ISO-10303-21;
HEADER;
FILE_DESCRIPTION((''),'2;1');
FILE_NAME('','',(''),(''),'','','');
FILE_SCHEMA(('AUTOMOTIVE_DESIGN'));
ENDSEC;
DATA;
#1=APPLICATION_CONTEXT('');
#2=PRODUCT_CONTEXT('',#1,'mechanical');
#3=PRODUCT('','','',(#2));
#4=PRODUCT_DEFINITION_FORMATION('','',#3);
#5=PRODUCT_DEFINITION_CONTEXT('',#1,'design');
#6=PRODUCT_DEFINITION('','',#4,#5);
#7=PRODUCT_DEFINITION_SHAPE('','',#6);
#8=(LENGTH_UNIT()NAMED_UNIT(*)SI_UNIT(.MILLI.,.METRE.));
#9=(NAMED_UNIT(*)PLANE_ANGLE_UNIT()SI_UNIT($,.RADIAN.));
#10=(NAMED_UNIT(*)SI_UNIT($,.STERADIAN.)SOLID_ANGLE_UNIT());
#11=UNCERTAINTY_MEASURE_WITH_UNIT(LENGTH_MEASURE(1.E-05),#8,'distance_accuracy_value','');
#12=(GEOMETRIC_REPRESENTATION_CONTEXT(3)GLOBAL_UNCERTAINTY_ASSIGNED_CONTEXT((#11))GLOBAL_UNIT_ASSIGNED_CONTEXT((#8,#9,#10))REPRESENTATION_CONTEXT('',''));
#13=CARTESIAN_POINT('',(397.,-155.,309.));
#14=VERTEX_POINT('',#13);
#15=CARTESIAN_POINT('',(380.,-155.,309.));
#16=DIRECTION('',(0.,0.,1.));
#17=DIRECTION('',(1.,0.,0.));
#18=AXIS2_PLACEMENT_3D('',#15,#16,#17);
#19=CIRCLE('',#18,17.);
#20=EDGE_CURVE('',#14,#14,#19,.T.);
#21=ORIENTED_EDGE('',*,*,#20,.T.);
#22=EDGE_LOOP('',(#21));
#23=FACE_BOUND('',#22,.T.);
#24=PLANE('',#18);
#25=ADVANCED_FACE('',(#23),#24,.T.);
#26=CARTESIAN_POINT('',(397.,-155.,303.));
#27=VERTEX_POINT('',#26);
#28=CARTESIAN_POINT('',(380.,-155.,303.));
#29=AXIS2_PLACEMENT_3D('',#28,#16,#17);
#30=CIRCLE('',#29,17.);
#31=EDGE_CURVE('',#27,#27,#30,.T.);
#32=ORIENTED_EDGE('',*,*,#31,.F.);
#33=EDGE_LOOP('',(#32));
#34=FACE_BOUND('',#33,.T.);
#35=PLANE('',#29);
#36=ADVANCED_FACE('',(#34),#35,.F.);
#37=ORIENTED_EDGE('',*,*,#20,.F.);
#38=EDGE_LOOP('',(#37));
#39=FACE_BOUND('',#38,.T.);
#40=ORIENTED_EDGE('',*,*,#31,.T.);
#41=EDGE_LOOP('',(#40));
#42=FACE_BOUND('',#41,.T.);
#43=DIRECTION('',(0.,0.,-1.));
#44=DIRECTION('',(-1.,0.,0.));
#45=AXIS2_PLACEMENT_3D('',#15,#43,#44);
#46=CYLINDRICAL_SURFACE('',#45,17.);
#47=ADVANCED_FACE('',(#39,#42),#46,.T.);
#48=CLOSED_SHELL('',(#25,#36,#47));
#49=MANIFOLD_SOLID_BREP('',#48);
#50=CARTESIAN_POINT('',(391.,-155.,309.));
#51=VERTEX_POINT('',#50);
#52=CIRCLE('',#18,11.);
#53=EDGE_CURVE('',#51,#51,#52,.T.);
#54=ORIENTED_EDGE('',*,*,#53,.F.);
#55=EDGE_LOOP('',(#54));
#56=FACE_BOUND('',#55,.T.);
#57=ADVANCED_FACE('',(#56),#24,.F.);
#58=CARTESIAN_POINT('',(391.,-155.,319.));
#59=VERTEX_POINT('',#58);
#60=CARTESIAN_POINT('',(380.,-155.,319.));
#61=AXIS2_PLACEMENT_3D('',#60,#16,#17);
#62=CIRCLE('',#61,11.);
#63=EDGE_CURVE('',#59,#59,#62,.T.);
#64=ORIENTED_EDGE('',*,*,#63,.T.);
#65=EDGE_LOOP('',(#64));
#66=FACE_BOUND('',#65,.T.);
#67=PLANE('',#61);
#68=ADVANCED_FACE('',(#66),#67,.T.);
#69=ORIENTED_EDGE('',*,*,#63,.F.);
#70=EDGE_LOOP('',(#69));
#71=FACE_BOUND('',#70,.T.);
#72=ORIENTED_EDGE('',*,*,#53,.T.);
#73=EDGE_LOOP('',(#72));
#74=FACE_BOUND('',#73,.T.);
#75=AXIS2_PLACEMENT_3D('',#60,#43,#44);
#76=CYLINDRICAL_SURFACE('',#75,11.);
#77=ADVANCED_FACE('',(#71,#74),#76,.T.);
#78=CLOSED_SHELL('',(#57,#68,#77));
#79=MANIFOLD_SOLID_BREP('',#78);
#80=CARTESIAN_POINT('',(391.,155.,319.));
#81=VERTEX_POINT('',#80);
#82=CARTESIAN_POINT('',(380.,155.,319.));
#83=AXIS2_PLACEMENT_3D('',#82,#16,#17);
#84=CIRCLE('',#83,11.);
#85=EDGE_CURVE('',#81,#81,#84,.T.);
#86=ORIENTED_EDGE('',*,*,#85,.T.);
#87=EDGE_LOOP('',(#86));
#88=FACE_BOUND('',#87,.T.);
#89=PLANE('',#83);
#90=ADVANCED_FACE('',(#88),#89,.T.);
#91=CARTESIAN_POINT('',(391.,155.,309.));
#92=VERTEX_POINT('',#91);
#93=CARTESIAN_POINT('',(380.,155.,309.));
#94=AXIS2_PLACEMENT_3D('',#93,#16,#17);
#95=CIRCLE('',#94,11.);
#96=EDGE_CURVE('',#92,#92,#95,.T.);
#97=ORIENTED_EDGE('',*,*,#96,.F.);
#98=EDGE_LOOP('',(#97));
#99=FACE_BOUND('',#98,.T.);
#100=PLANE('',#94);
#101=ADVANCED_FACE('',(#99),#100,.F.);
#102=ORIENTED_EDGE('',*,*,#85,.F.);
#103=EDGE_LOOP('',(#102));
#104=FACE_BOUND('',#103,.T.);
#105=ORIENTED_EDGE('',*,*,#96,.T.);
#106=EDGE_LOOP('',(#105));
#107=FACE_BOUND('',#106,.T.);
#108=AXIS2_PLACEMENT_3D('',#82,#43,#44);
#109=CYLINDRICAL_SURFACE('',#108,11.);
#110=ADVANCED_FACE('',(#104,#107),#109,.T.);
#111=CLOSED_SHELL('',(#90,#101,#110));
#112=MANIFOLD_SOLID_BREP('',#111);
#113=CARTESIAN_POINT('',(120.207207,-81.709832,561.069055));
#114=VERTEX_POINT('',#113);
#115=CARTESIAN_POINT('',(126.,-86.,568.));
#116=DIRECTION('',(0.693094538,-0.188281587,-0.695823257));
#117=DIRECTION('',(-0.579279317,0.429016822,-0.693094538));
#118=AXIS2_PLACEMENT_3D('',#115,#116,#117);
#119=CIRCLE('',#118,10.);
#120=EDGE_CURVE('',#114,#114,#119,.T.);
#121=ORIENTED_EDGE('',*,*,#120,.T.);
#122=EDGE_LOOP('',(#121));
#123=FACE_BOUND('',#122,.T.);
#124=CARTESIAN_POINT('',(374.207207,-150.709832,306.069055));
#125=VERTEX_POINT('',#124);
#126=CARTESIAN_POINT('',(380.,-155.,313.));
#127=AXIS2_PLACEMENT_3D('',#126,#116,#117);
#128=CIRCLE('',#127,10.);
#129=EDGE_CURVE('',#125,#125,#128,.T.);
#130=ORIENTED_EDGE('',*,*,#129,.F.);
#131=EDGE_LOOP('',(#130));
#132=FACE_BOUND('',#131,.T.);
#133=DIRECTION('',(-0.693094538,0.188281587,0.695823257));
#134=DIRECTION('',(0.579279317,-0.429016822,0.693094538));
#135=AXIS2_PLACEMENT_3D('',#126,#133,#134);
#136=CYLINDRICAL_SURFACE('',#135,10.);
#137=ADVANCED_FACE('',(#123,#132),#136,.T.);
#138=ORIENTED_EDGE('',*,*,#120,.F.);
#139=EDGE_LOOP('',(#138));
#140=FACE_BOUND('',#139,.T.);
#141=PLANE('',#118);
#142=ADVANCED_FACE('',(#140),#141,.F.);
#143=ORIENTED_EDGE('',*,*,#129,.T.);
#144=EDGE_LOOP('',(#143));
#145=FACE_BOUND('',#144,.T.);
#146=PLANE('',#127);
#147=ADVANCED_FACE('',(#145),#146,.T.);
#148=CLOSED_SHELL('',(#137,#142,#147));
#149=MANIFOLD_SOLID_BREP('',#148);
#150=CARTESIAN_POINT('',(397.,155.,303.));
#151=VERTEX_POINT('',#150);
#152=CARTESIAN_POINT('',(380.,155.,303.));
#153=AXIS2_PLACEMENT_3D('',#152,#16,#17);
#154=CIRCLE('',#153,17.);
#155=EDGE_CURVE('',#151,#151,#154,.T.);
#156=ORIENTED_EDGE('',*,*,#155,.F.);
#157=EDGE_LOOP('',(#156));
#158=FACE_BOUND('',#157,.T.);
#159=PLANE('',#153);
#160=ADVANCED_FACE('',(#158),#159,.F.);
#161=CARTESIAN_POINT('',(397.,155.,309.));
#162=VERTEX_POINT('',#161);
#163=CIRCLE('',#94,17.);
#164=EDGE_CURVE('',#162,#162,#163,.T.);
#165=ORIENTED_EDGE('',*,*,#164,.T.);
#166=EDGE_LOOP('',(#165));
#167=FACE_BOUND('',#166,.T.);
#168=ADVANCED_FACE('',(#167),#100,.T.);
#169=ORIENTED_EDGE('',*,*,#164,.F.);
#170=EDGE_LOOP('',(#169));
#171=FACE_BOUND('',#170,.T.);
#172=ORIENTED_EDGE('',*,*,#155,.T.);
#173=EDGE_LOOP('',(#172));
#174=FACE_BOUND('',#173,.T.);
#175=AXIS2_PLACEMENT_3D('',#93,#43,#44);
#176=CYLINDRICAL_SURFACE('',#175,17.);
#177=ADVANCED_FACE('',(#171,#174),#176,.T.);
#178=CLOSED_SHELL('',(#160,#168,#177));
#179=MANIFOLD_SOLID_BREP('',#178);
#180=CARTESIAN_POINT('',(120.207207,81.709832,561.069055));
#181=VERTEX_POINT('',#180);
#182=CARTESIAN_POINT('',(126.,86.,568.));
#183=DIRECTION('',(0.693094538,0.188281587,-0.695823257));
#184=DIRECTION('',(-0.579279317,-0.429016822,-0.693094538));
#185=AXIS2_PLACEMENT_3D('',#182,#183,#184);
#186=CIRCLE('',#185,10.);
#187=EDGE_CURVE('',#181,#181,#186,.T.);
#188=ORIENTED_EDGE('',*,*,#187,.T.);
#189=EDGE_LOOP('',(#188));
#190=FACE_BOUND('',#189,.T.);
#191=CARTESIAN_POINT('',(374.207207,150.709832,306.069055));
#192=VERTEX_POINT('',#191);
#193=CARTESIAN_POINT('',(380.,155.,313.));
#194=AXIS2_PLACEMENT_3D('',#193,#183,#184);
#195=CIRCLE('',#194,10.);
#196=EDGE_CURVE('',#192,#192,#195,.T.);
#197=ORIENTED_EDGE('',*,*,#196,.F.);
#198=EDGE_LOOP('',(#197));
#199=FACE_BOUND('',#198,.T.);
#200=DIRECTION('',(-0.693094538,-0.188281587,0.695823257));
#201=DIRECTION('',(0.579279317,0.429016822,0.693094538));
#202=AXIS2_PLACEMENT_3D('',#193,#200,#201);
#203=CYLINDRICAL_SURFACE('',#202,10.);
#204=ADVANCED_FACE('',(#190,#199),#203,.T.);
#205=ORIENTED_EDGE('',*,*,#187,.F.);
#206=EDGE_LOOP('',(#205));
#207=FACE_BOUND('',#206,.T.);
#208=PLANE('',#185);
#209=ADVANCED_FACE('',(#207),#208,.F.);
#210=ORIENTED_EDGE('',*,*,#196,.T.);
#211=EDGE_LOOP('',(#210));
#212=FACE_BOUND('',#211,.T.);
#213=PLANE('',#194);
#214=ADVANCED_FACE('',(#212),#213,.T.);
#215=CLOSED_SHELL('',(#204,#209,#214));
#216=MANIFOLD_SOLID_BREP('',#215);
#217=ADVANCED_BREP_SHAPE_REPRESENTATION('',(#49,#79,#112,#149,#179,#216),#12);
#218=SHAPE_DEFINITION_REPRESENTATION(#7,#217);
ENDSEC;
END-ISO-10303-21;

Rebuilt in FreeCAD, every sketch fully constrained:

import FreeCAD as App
import Part
import Sketcher
Q = App.Units.Quantity

doc = App.newDocument("Part")
body = doc.addObject("PartDesign::Body", "Body")

# Sketch on XY plane
sketch1 = body.newObject("Sketcher::SketchObject", "Sketch")
sketch1.AttachmentSupport = (doc.getObject("XY_Plane"), [""])
sketch1.MapMode = "FlatFace"
sketch1.addGeometry(Part.Circle(App.Vector(0, 0, 0), App.Vector(0, 0, 1), 10), False)
sketch1.addConstraint([
    Sketcher.Constraint("Coincident", 0, 3, -1, 1),
    Sketcher.Constraint("Diameter", 0, Q("20 mm")),
])
pad1 = body.newObject("PartDesign::Pad", "Pad")
pad1.Profile = sketch1
pad1.Length = 366.472373
body2 = doc.addObject("PartDesign::Body", "Body001")
doc.recompute()

body.Placement = App.Placement(App.Vector(0, 0, 0), App.Rotation(App.Vector(-1, 0, 0), 164.859016))
boolean = body2.newObject("PartDesign::Boolean", "Boolean")
boolean.Type = "Fuse"
boolean.addObjects([body])
body3 = doc.addObject("PartDesign::Body", "Body002")
doc.recompute()

body2.Placement = App.Placement(App.Vector(0, 0, 0), App.Rotation(App.Vector(0, 1, 0), 43.87557))
boolean2 = body3.newObject("PartDesign::Boolean", "Boolean001")
boolean2.Type = "Fuse"
boolean2.addObjects([body2])
body4 = doc.addObject("PartDesign::Body", "Body003")
doc.recompute()

body3.Placement = App.Placement(App.Vector(0, 0, 0), App.Rotation(App.Vector(0, 0, -1), 143.476188))
boolean3 = body4.newObject("PartDesign::Boolean", "Boolean002")
boolean3.Type = "Fuse"
boolean3.addObjects([body3])
body5 = doc.addObject("PartDesign::Body", "Body004")
doc.recompute()

body4.Placement = App.Placement(App.Vector(126, 86, 568), App.Rotation(App.Vector(0, 0, 1), 0))
boolean4 = body5.newObject("PartDesign::Boolean", "Boolean003")
boolean4.Type = "Fuse"
boolean4.addObjects([body4])
body6 = doc.addObject("PartDesign::Body", "Body005")

# Sketch on XY plane
sketch2 = body6.newObject("Sketcher::SketchObject", "Sketch001")
sketch2.AttachmentSupport = (doc.getObject("XY_Plane005"), [""])
sketch2.MapMode = "FlatFace"
sketch2.AttachmentOffset = App.Placement(App.Vector(0, 0, 303), App.Rotation())
sketch2.addGeometry(Part.Circle(App.Vector(380, 155, 0), App.Vector(0, 0, 1), 17), False)
sketch2.addConstraint([
    Sketcher.Constraint("Diameter", 0, Q("34 mm")),
    Sketcher.Constraint("DistanceX", -1, 1, 0, 3, Q("380 mm")),
    Sketcher.Constraint("DistanceY", -1, 1, 0, 3, Q("155 mm")),
])
pad2 = body6.newObject("PartDesign::Pad", "Pad001")
pad2.Profile = sketch2
pad2.Length = 6
body7 = doc.addObject("PartDesign::Body", "Body006")

# Sketch on XY plane
sketch3 = body7.newObject("Sketcher::SketchObject", "Sketch002")
sketch3.AttachmentSupport = (doc.getObject("XY_Plane006"), [""])
sketch3.MapMode = "FlatFace"
sketch3.AttachmentOffset = App.Placement(App.Vector(0, 0, 309), App.Rotation())
sketch3.addGeometry(Part.Circle(App.Vector(380, 155, 0), App.Vector(0, 0, 1), 11), False)
sketch3.addConstraint([
    Sketcher.Constraint("Diameter", 0, Q("22 mm")),
    Sketcher.Constraint("DistanceX", -1, 1, 0, 3, Q("380 mm")),
    Sketcher.Constraint("DistanceY", -1, 1, 0, 3, Q("155 mm")),
])
pad3 = body7.newObject("PartDesign::Pad", "Pad002")
pad3.Profile = sketch3
pad3.Length = 10
body8 = doc.addObject("PartDesign::Body", "Body007")

# Sketch on XY plane
sketch4 = body8.newObject("Sketcher::SketchObject", "Sketch003")
sketch4.AttachmentSupport = (doc.getObject("XY_Plane007"), [""])
sketch4.MapMode = "FlatFace"
sketch4.addGeometry(Part.Circle(App.Vector(0, 0, 0), App.Vector(0, 0, 1), 10), False)
sketch4.addConstraint([
    Sketcher.Constraint("Coincident", 0, 3, -1, 1),
    Sketcher.Constraint("Diameter", 0, Q("20 mm")),
])
pad4 = body8.newObject("PartDesign::Pad", "Pad003")
pad4.Profile = sketch4
pad4.Length = 366.472373
body9 = doc.addObject("PartDesign::Body", "Body008")
doc.recompute()

body8.Placement = App.Placement(App.Vector(0, 0, 0), App.Rotation(App.Vector(1, 0, 0), 164.859016))
boolean5 = body9.newObject("PartDesign::Boolean", "Boolean004")
boolean5.Type = "Fuse"
boolean5.addObjects([body8])
body10 = doc.addObject("PartDesign::Body", "Body009")
doc.recompute()

body9.Placement = App.Placement(App.Vector(0, 0, 0), App.Rotation(App.Vector(0, 1, 0), 43.87557))
boolean6 = body10.newObject("PartDesign::Boolean", "Boolean005")
boolean6.Type = "Fuse"
boolean6.addObjects([body9])
body11 = doc.addObject("PartDesign::Body", "Body010")
doc.recompute()

body10.Placement = App.Placement(App.Vector(0, 0, 0), App.Rotation(App.Vector(0, 0, 1), 143.476188))
boolean7 = body11.newObject("PartDesign::Boolean", "Boolean006")
boolean7.Type = "Fuse"
boolean7.addObjects([body10])
body12 = doc.addObject("PartDesign::Body", "Body011")
doc.recompute()

body11.Placement = App.Placement(App.Vector(126, -86, 568), App.Rotation(App.Vector(0, 0, 1), 0))
boolean8 = body12.newObject("PartDesign::Boolean", "Boolean007")
boolean8.Type = "Fuse"
boolean8.addObjects([body11])
body13 = doc.addObject("PartDesign::Body", "Body012")

# Sketch on XY plane
sketch5 = body13.newObject("Sketcher::SketchObject", "Sketch004")
sketch5.AttachmentSupport = (doc.getObject("XY_Plane012"), [""])
sketch5.MapMode = "FlatFace"
sketch5.AttachmentOffset = App.Placement(App.Vector(0, 0, 303), App.Rotation())
sketch5.addGeometry(Part.Circle(App.Vector(380, -155, 0), App.Vector(0, 0, 1), 17), False)
sketch5.addConstraint([
    Sketcher.Constraint("Diameter", 0, Q("34 mm")),
    Sketcher.Constraint("DistanceX", -1, 1, 0, 3, Q("380 mm")),
    Sketcher.Constraint("DistanceY", 0, 3, -1, 1, Q("155 mm")),
])
pad5 = body13.newObject("PartDesign::Pad", "Pad004")
pad5.Profile = sketch5
pad5.Length = 6
body14 = doc.addObject("PartDesign::Body", "Body013")

# Sketch on XY plane
sketch6 = body14.newObject("Sketcher::SketchObject", "Sketch005")
sketch6.AttachmentSupport = (doc.getObject("XY_Plane013"), [""])
sketch6.MapMode = "FlatFace"
sketch6.AttachmentOffset = App.Placement(App.Vector(0, 0, 309), App.Rotation())
sketch6.addGeometry(Part.Circle(App.Vector(380, -155, 0), App.Vector(0, 0, 1), 11), False)
sketch6.addConstraint([
    Sketcher.Constraint("Diameter", 0, Q("22 mm")),
    Sketcher.Constraint("DistanceX", -1, 1, 0, 3, Q("380 mm")),
    Sketcher.Constraint("DistanceY", 0, 3, -1, 1, Q("155 mm")),
])
pad6 = body14.newObject("PartDesign::Pad", "Pad005")
pad6.Profile = sketch6
pad6.Length = 10

doc.recompute()
